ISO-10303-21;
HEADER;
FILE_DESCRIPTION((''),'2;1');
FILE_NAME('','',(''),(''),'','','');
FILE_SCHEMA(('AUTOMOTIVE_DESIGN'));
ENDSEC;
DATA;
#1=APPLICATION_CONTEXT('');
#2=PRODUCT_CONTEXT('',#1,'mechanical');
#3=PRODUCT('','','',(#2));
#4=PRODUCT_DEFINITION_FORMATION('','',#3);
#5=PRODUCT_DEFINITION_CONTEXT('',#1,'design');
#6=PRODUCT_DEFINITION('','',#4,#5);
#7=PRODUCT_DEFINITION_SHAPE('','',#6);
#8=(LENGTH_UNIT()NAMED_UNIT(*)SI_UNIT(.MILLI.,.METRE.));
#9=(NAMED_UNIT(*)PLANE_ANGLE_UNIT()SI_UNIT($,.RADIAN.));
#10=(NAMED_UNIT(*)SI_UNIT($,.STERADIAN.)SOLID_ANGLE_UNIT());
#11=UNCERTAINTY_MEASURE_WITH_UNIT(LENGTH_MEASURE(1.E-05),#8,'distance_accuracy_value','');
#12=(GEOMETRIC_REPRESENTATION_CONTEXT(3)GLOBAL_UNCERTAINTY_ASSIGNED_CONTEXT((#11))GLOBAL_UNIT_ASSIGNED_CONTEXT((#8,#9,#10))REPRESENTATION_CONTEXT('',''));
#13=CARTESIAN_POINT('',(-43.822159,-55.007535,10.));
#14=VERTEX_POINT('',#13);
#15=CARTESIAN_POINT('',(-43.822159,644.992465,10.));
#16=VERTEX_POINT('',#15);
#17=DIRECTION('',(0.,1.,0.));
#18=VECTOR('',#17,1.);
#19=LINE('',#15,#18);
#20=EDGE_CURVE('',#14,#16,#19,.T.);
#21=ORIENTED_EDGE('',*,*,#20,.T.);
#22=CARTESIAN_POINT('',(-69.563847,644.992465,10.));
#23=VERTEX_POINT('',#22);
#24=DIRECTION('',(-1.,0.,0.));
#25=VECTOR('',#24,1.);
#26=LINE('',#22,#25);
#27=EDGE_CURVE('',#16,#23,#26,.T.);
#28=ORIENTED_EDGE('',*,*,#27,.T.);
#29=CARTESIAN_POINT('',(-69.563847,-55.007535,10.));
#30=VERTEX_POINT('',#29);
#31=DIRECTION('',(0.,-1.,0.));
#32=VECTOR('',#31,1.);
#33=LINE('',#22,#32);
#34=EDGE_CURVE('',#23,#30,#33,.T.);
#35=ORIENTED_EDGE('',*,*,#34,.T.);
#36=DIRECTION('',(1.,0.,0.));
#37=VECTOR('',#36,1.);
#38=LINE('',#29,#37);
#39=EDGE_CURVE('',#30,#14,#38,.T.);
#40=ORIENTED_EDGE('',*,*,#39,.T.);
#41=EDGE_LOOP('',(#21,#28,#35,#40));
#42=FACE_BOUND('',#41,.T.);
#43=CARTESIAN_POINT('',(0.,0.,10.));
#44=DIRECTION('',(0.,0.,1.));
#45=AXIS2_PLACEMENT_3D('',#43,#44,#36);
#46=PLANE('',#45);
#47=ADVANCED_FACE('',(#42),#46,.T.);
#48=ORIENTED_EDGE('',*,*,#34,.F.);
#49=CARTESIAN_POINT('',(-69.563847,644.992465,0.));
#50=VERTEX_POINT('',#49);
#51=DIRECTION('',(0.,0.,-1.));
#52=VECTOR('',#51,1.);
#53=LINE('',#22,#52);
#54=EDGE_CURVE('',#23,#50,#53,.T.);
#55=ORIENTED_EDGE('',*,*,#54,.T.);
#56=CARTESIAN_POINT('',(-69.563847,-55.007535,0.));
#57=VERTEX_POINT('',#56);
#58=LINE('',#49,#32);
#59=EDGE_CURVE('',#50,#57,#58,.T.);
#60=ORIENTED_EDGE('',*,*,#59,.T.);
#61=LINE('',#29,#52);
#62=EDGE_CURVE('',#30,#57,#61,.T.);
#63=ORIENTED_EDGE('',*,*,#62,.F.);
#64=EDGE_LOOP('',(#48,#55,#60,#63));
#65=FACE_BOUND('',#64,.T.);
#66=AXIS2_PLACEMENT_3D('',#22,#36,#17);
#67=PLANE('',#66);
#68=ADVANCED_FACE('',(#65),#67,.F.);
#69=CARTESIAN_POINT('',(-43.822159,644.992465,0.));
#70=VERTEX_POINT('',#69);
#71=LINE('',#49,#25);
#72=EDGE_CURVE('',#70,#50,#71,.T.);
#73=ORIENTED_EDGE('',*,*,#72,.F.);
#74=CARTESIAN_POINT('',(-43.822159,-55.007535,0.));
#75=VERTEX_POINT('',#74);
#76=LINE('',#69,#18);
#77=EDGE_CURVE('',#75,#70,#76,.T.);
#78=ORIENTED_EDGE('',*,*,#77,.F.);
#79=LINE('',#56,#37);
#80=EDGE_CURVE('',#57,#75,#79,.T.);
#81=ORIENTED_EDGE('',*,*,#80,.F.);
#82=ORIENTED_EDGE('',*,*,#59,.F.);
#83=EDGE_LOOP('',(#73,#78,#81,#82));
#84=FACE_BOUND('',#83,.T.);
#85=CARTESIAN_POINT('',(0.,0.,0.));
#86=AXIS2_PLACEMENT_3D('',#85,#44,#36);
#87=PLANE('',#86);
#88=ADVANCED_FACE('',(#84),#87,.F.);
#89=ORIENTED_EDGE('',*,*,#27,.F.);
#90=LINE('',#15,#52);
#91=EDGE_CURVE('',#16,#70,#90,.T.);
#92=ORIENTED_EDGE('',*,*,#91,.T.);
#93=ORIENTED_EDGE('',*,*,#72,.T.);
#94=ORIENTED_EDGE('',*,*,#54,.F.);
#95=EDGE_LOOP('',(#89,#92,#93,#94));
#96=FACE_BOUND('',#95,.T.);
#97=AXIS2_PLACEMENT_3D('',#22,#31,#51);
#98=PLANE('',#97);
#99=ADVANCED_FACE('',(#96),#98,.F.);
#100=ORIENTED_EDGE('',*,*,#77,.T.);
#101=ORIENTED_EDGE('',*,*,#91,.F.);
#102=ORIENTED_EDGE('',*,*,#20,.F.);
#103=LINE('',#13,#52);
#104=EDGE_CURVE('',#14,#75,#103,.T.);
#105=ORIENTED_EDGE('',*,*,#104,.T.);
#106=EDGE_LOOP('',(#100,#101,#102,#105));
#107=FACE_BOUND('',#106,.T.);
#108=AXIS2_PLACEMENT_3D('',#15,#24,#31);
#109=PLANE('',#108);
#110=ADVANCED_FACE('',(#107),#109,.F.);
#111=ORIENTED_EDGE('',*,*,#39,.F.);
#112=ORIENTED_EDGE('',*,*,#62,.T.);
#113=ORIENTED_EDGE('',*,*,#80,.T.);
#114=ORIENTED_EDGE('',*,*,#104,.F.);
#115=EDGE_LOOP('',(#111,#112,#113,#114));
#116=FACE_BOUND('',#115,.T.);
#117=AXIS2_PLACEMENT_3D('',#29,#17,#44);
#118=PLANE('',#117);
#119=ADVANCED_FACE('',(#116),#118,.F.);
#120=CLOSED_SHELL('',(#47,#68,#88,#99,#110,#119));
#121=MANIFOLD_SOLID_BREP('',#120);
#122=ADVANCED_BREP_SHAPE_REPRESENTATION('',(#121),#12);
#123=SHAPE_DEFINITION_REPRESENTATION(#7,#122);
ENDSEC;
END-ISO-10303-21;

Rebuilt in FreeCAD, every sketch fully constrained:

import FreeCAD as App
import Part
import Sketcher
from FreeCAD import Vector


def add_polygon(sketch, points):
    """Adds a closed chain of lines whose ends are joined by coincident constraints."""
    first, n = sketch.GeometryCount, len(points)
    for a, b in zip(points, points[1:] + points[:1]):
        sketch.addGeometry(Part.LineSegment(App.Vector(*a, 0), App.Vector(*b, 0)), False)
    for i in range(n):
        sketch.addConstraint(Sketcher.Constraint("Coincident", first + i, 2, first + (i + 1) % n, 1))

doc = App.newDocument("Part")
body = doc.addObject("PartDesign::Body", "Body")

sketch1 = doc.addObject("Sketcher::SketchObject", "Sketch")
body.addObject(sketch1)
sketch1.AttachmentSupport = (doc.XY_Plane, [""])
sketch1.MapMode = "FlatFace"
add_polygon(sketch1, [(-70, 645), (-70, -55), (-44, -55), (-44, 645)])
sketch1.addConstraint(Sketcher.Constraint("Vertical", 0))
sketch1.addConstraint(Sketcher.Constraint("Horizontal", 1))
sketch1.addConstraint(Sketcher.Constraint("Vertical", 2))
sketch1.addConstraint(Sketcher.Constraint("Horizontal", 3))
sketch1.addConstraint(Sketcher.Constraint("DistanceY", 0, 2, 0, 1, 700.0))
sketch1.addConstraint(Sketcher.Constraint("DistanceX", 1, 1, 1, 2, 25.741688))
sketch1.addConstraint(Sketcher.Constraint("DistanceX", 1, 2, -1, 1, 43.822159))
sketch1.addConstraint(Sketcher.Constraint("DistanceY", 0, 2, -1, 1, 55.007535))
pad1 = doc.addObject("PartDesign::Pad", "Pad")
body.addObject(pad1)
pad1.Profile = sketch1
pad1.Length = 10

doc.recompute()
